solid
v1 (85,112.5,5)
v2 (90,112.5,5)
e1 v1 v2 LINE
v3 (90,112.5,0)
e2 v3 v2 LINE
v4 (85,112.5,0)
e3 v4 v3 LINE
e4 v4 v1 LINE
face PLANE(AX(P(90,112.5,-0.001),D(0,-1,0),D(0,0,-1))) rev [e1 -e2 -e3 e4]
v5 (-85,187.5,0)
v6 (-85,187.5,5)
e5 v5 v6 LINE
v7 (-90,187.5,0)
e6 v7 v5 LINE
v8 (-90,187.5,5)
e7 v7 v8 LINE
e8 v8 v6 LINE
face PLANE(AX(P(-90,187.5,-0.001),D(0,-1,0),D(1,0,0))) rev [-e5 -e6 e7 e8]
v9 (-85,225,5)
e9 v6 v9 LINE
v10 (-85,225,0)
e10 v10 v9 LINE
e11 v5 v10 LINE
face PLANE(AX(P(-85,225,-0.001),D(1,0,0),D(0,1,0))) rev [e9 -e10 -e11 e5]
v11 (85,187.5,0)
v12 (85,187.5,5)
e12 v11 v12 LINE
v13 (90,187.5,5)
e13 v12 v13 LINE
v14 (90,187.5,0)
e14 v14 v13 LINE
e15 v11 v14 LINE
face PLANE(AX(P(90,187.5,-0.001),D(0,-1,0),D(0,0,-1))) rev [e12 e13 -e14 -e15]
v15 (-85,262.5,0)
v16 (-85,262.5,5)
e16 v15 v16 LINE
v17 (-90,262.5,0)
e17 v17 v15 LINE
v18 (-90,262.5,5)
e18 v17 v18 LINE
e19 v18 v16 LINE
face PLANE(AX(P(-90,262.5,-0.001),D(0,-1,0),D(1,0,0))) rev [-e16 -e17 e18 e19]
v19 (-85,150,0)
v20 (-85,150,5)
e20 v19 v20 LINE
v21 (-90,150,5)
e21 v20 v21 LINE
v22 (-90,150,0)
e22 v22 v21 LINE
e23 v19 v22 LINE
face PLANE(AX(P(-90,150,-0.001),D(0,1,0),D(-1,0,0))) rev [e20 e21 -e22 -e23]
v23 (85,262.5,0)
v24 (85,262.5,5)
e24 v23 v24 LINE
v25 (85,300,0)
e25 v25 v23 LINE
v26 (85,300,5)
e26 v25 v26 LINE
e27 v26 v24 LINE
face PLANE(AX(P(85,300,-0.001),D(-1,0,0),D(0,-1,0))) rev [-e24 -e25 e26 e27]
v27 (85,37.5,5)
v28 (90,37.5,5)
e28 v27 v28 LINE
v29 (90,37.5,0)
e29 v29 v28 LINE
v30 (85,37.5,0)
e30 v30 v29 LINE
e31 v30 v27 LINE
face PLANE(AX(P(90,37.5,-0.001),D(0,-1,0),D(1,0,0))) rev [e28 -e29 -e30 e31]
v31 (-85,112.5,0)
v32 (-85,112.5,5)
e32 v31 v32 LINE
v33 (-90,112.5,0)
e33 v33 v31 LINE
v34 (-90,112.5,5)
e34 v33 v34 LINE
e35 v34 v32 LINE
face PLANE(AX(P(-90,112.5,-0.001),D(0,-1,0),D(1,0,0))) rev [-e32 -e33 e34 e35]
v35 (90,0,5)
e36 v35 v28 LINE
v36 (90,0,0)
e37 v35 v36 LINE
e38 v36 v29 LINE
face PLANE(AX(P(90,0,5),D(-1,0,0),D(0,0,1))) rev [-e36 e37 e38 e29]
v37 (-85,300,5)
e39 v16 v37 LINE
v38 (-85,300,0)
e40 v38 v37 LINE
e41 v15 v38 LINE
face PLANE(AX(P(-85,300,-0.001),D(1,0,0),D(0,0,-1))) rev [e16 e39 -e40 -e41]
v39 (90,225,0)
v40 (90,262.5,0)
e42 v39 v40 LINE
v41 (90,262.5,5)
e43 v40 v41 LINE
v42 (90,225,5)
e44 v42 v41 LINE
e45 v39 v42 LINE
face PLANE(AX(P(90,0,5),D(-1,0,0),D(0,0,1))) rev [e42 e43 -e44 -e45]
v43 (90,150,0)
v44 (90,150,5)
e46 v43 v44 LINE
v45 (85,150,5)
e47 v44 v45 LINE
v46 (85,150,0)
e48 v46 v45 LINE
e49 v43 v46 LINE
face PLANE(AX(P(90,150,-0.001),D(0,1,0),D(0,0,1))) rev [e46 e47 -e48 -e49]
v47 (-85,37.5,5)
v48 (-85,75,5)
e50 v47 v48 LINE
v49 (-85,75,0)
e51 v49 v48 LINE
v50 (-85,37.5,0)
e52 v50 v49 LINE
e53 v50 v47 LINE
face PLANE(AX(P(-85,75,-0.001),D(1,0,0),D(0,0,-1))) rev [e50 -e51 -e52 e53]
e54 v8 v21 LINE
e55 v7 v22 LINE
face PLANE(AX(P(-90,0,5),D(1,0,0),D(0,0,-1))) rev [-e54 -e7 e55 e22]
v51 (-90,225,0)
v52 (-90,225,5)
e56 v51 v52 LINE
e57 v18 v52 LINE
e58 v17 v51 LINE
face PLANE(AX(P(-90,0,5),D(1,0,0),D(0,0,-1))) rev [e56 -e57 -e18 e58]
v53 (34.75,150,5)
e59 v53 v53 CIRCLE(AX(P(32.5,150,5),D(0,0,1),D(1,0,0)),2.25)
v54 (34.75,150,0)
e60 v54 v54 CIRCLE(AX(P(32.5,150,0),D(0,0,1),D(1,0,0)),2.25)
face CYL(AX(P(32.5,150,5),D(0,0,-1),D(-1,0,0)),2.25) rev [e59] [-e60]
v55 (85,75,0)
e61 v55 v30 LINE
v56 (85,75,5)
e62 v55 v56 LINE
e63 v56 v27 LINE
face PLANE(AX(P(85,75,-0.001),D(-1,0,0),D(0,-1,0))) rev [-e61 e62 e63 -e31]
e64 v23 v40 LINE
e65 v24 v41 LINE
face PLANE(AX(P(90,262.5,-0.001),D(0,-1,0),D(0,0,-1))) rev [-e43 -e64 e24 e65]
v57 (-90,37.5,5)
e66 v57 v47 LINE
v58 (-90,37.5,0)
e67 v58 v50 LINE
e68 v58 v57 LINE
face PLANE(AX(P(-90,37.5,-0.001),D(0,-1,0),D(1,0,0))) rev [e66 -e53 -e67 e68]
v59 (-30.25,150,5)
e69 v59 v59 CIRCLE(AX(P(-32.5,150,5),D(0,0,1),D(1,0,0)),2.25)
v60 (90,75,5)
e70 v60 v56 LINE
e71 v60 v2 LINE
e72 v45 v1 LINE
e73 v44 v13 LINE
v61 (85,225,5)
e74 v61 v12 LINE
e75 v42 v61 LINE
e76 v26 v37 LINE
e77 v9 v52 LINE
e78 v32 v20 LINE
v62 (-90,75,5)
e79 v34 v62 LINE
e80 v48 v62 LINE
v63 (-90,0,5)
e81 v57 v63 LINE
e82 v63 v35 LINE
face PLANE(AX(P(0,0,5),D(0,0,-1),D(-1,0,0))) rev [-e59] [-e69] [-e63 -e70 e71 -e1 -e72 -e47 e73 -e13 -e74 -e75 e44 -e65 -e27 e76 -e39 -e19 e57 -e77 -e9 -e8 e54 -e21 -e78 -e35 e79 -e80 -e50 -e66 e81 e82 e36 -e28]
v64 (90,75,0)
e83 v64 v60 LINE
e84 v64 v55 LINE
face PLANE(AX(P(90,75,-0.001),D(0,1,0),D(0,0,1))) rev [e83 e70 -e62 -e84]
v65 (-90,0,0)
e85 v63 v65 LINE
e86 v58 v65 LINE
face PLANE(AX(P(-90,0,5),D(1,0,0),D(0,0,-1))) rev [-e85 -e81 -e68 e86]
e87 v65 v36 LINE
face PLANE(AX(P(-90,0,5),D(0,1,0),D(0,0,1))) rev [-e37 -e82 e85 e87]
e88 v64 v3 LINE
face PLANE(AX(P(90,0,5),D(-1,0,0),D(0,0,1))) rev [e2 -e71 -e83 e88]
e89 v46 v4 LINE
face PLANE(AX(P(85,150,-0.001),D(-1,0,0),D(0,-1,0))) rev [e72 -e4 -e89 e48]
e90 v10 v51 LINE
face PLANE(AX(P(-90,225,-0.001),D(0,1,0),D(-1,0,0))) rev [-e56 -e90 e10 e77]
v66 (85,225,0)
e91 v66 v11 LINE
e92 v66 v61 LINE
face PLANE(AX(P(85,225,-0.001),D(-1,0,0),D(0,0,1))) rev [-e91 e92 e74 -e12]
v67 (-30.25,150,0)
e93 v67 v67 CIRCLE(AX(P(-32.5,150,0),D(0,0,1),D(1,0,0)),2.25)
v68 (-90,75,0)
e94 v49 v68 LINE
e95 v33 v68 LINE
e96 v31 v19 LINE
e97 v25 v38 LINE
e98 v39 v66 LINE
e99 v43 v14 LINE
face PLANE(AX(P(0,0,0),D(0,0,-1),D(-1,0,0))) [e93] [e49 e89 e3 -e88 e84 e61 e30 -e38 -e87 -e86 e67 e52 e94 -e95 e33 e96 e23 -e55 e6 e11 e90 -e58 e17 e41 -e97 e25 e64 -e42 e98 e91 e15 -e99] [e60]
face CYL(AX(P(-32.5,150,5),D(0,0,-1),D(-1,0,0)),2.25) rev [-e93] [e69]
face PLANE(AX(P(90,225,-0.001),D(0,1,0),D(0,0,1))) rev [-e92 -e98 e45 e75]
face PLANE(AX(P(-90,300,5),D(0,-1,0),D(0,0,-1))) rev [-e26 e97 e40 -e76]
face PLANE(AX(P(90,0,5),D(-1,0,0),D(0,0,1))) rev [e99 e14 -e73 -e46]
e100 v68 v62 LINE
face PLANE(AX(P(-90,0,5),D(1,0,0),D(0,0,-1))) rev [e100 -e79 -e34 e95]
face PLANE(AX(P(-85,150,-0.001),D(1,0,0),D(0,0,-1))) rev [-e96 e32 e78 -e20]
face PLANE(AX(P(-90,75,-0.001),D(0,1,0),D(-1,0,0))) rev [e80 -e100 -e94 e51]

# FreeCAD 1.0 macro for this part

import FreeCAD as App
import Part
import Sketcher
from FreeCAD import Vector

doc = App.newDocument("Part")
body = doc.addObject("PartDesign::Body", "Body")

sketch1 = body.newObject("Sketcher::SketchObject", "Sketch")
sketch1.AttachmentSupport = (doc.getObject("XY_Plane"), [""])
sketch1.MapMode = "FlatFace"
sketch1.addGeometry([
    Part.LineSegment(Vector(-90, 300, 0), Vector(-90, 0, 0)),
    Part.LineSegment(Vector(-90, 0, 0), Vector(90, 0, 0)),
    Part.LineSegment(Vector(90, 0, 0), Vector(90, 300, 0)),
    Part.LineSegment(Vector(90, 300, 0), Vector(-90, 300, 0)),
    Part.Circle(Vector(-32.5, 150, 0), Vector(0, 0, 1), 2.2),
    Part.Circle(Vector(32.5, 150, 0), Vector(0, 0, 1), 2.2),
], False)
sketch1.addConstraint([
    Sketcher.Constraint("Coincident", 0, 2, 1, 1),
    Sketcher.Constraint("Coincident", 1, 2, 2, 1),
    Sketcher.Constraint("Coincident", 2, 2, 3, 1),
    Sketcher.Constraint("Coincident", 3, 2, 0, 1),
    Sketcher.Constraint("Vertical", 0),
    Sketcher.Constraint("Horizontal", 1),
    Sketcher.Constraint("Vertical", 2),
    Sketcher.Constraint("Horizontal", 3),
    Sketcher.Constraint("Equal", 4, 5),
    Sketcher.Constraint("Symmetric", 0, 2, 1, 2, -1, 1),
    Sketcher.Constraint("Symmetric", 4, 3, 5, 3, -2),
    Sketcher.Constraint("Diameter", 4, 4.5),
    Sketcher.Constraint("DistanceX", 1, 1, 1, 2, 180.0),
    Sketcher.Constraint("DistanceY", 0, 2, 0, 1, 300.0),
    Sketcher.Constraint("DistanceY", -1, 1, 4, 3, 150.0),
    Sketcher.Constraint("DistanceX", 4, 3, 5, 3, 65.0),
])
pad1 = body.newObject("PartDesign::Pad", "Pad")
pad1.Profile = sketch1
pad1.Length = 5

sketch2 = body.newObject("Sketcher::SketchObject", "Sketch001")
sketch2.AttachmentSupport = (doc.getObject("XY_Plane"), [""])
sketch2.MapMode = "FlatFace"
sketch2.AttachmentOffset = App.Placement(Vector(0, 0, 5), App.Rotation())
sketch2.addGeometry([
    Part.LineSegment(Vector(-90, 300, 0), Vector(-90, 262, 0)),
    Part.LineSegment(Vector(-90, 262, 0), Vector(-85, 262, 0)),
    Part.LineSegment(Vector(-85, 262, 0), Vector(-85, 300, 0)),
    Part.LineSegment(Vector(-85, 300, 0), Vector(-90, 300, 0)),
], False)
sketch2.addConstraint([
    Sketcher.Constraint("Coincident", 0, 2, 1, 1),
    Sketcher.Constraint("Coincident", 1, 2, 2, 1),
    Sketcher.Constraint("Coincident", 2, 2, 3, 1),
    Sketcher.Constraint("Coincident", 3, 2, 0, 1),
    Sketcher.Constraint("Vertical", 0),
    Sketcher.Constraint("Horizontal", 1),
    Sketcher.Constraint("Vertical", 2),
    Sketcher.Constraint("Horizontal", 3),
    Sketcher.Constraint("DistanceX", 1, 1, 1, 2, 5.0),
    Sketcher.Constraint("DistanceY", 0, 2, 0, 1, 37.5),
    Sketcher.Constraint("DistanceX", 0, 2, -1, 1, 90.0),
    Sketcher.Constraint("DistanceY", -1, 1, 2, 2, 300.0),
])
pocket1 = body.newObject("PartDesign::Pocket", "Pocket")
pocket1.Profile = sketch2
pocket1.Type = "UpToFirst"

sketch3 = body.newObject("Sketcher::SketchObject", "Sketch002")
sketch3.AttachmentSupport = (doc.getObject("XY_Plane"), [""])
sketch3.MapMode = "FlatFace"
sketch3.AttachmentOffset = App.Placement(Vector(0, 0, 5), App.Rotation())
sketch3.addGeometry([
    Part.LineSegment(Vector(-90, 225, 0), Vector(-90, 188, 0)),
    Part.LineSegment(Vector(-90, 188, 0), Vector(-85, 188, 0)),
    Part.LineSegment(Vector(-85, 188, 0), Vector(-85, 225, 0)),
    Part.LineSegment(Vector(-85, 225, 0), Vector(-90, 225, 0)),
], False)
sketch3.addConstraint([
    Sketcher.Constraint("Coincident", 0, 2, 1, 1),
    Sketcher.Constraint("Coincident", 1, 2, 2, 1),
    Sketcher.Constraint("Coincident", 2, 2, 3, 1),
    Sketcher.Constraint("Coincident", 3, 2, 0, 1),
    Sketcher.Constraint("Vertical", 0),
    Sketcher.Constraint("Horizontal", 1),
    Sketcher.Constraint("Vertical", 2),
    Sketcher.Constraint("Horizontal", 3),
    Sketcher.Constraint("DistanceX", 1, 1, 1, 2, 5.0),
    Sketcher.Constraint("DistanceY", 0, 2, 0, 1, 37.5),
    Sketcher.Constraint("DistanceX", 0, 2, -1, 1, 90.0),
    Sketcher.Constraint("DistanceY", -1, 1, 2, 2, 225.0),
])
pocket2 = body.newObject("PartDesign::Pocket", "Pocket001")
pocket2.Profile = sketch3
pocket2.Type = "UpToFirst"

sketch4 = body.newObject("Sketcher::SketchObject", "Sketch003")
sketch4.AttachmentSupport = (doc.getObject("XY_Plane"), [""])
sketch4.MapMode = "FlatFace"
sketch4.AttachmentOffset = App.Placement(Vector(0, 0, 5), App.Rotation())
sketch4.addGeometry([
    Part.LineSegment(Vector(-90, 150, 0), Vector(-90, 112, 0)),
    Part.LineSegment(Vector(-90, 112, 0), Vector(-85, 112, 0)),
    Part.LineSegment(Vector(-85, 112, 0), Vector(-85, 150, 0)),
    Part.LineSegment(Vector(-85, 150, 0), Vector(-90, 150, 0)),
], False)
sketch4.addConstraint([
    Sketcher.Constraint("Coincident", 0, 2, 1, 1),
    Sketcher.Constraint("Coincident", 1, 2, 2, 1),
    Sketcher.Constraint("Coincident", 2, 2, 3, 1),
    Sketcher.Constraint("Coincident", 3, 2, 0, 1),
    Sketcher.Constraint("Vertical", 0),
    Sketcher.Constraint("Horizontal", 1),
    Sketcher.Constraint("Vertical", 2),
    Sketcher.Constraint("Horizontal", 3),
    Sketcher.Constraint("DistanceX", 1, 1, 1, 2, 5.0),
    Sketcher.Constraint("DistanceY", 0, 2, 0, 1, 37.5),
    Sketcher.Constraint("DistanceX", 0, 2, -1, 1, 90.0),
    Sketcher.Constraint("DistanceY", -1, 1, 2, 2, 150.0),
])
pocket3 = body.newObject("PartDesign::Pocket", "Pocket002")
pocket3.Profile = sketch4
pocket3.Type = "UpToFirst"

sketch5 = body.newObject("Sketcher::SketchObject", "Sketch004")
sketch5.AttachmentSupport = (doc.getObject("XY_Plane"), [""])
sketch5.MapMode = "FlatFace"
sketch5.AttachmentOffset = App.Placement(Vector(0, 0, 5), App.Rotation())
sketch5.addGeometry([
    Part.LineSegment(Vector(-90, 75, 0), Vector(-90, 38, 0)),
    Part.LineSegment(Vector(-90, 38, 0), Vector(-85, 38, 0)),
    Part.LineSegment(Vector(-85, 38, 0), Vector(-85, 75, 0)),
    Part.LineSegment(Vector(-85, 75, 0), Vector(-90, 75, 0)),
], False)
sketch5.addConstraint([
    Sketcher.Constraint("Coincident", 0, 2, 1, 1),
    Sketcher.Constraint("Coincident", 1, 2, 2, 1),
    Sketcher.Constraint("Coincident", 2, 2, 3, 1),
    Sketcher.Constraint("Coincident", 3, 2, 0, 1),
    Sketcher.Constraint("Vertical", 0),
    Sketcher.Constraint("Horizontal", 1),
    Sketcher.Constraint("Vertical", 2),
    Sketcher.Constraint("Horizontal", 3),
    Sketcher.Constraint("DistanceX", 1, 1, 1, 2, 5.0),
    Sketcher.Constraint("DistanceY", 0, 2, 0, 1, 37.5),
    Sketcher.Constraint("DistanceX", 0, 2, -1, 1, 90.0),
    Sketcher.Constraint("DistanceY", -1, 1, 2, 2, 75.0),
])
pocket4 = body.newObject("PartDesign::Pocket", "Pocket003")
pocket4.Profile = sketch5
pocket4.Type = "UpToFirst"

sketch6 = body.newObject("Sketcher::SketchObject", "Sketch005")
sketch6.AttachmentSupport = (doc.getObject("XY_Plane"), [""])
sketch6.MapMode = "FlatFace"
sketch6.AttachmentOffset = App.Placement(Vector(0, 0, 5), App.Rotation())
sketch6.addGeometry([
    Part.LineSegment(Vector(85, 300, 0), Vector(85, 262, 0)),
    Part.LineSegment(Vector(85, 262, 0), Vector(90, 262, 0)),
    Part.LineSegment(Vector(90, 262, 0), Vector(90, 300, 0)),
    Part.LineSegment(Vector(90, 300, 0), Vector(85, 300, 0)),
], False)
sketch6.addConstraint([
    Sketcher.Constraint("Coincident", 0, 2, 1, 1),
    Sketcher.Constraint("Coincident", 1, 2, 2, 1),
    Sketcher.Constraint("Coincident", 2, 2, 3, 1),
    Sketcher.Constraint("Coincident", 3, 2, 0, 1),
    Sketcher.Constraint("Vertical", 0),
    Sketcher.Constraint("Horizontal", 1),
    Sketcher.Constraint("Vertical", 2),
    Sketcher.Constraint("Horizontal", 3),
    Sketcher.Constraint("DistanceX", 1, 1, 1, 2, 5.0),
    Sketcher.Constraint("DistanceY", 0, 2, 0, 1, 37.5),
    Sketcher.Constraint("DistanceX", -1, 1, 0, 2, 85.0),
    Sketcher.Constraint("DistanceY", -1, 1, 2, 2, 300.0),
])
pocket5 = body.newObject("PartDesign::Pocket", "Pocket004")
pocket5.Profile = sketch6
pocket5.Type = "UpToFirst"

sketch7 = body.newObject("Sketcher::SketchObject", "Sketch006")
sketch7.AttachmentSupport = (doc.getObject("XY_Plane"), [""])
sketch7.MapMode = "FlatFace"
sketch7.AttachmentOffset = App.Placement(Vector(0, 0, 5), App.Rotation())
sketch7.addGeometry([
    Part.LineSegment(Vector(85, 225, 0), Vector(85, 188, 0)),
    Part.LineSegment(Vector(85, 188, 0), Vector(90, 188, 0)),
    Part.LineSegment(Vector(90, 188, 0), Vector(90, 225, 0)),
    Part.LineSegment(Vector(90, 225, 0), Vector(85, 225, 0)),
], False)
sketch7.addConstraint([
    Sketcher.Constraint("Coincident", 0, 2, 1, 1),
    Sketcher.Constraint("Coincident", 1, 2, 2, 1),
    Sketcher.Constraint("Coincident", 2, 2, 3, 1),
    Sketcher.Constraint("Coincident", 3, 2, 0, 1),
    Sketcher.Constraint("Vertical", 0),
    Sketcher.Constraint("Horizontal", 1),
    Sketcher.Constraint("Vertical", 2),
    Sketcher.Constraint("Horizontal", 3),
    Sketcher.Constraint("DistanceX", 1, 1, 1, 2, 5.0),
    Sketcher.Constraint("DistanceY", 0, 2, 0, 1, 37.5),
    Sketcher.Constraint("DistanceX", -1, 1, 0, 2, 85.0),
    Sketcher.Constraint("DistanceY", -1, 1, 2, 2, 225.0),
])
pocket6 = body.newObject("PartDesign::Pocket", "Pocket005")
pocket6.Profile = sketch7
pocket6.Type = "UpToFirst"

sketch8 = body.newObject("Sketcher::SketchObject", "Sketch007")
sketch8.AttachmentSupport = (doc.getObject("XY_Plane"), [""])
sketch8.MapMode = "FlatFace"
sketch8.AttachmentOffset = App.Placement(Vector(0, 0, 5), App.Rotation())
sketch8.addGeometry([
    Part.LineSegment(Vector(85, 150, 0), Vector(85, 112, 0)),
    Part.LineSegment(Vector(85, 112, 0), Vector(90, 112, 0)),
    Part.LineSegment(Vector(90, 112, 0), Vector(90, 150, 0)),
    Part.LineSegment(Vector(90, 150, 0), Vector(85, 150, 0)),
], False)
sketch8.addConstraint([
    Sketcher.Constraint("Coincident", 0, 2, 1, 1),
    Sketcher.Constraint("Coincident", 1, 2, 2, 1),
    Sketcher.Constraint("Coincident", 2, 2, 3, 1),
    Sketcher.Constraint("Coincident", 3, 2, 0, 1),
    Sketcher.Constraint("Vertical", 0),
    Sketcher.Constraint("Horizontal", 1),
    Sketcher.Constraint("Vertical", 2),
    Sketcher.Constraint("Horizontal", 3),
    Sketcher.Constraint("DistanceX", 1, 1, 1, 2, 5.0),
    Sketcher.Constraint("DistanceY", 0, 2, 0, 1, 37.5),
    Sketcher.Constraint("DistanceX", -1, 1, 0, 2, 85.0),
    Sketcher.Constraint("DistanceY", -1, 1, 2, 2, 150.0),
])
pocket7 = body.newObject("PartDesign::Pocket", "Pocket006")
pocket7.Profile = sketch8
pocket7.Type = "UpToFirst"

sketch9 = body.newObject("Sketcher::SketchObject", "Sketch008")
sketch9.AttachmentSupport = (doc.getObject("XY_Plane"), [""])
sketch9.MapMode = "FlatFace"
sketch9.AttachmentOffset = App.Placement(Vector(0, 0, 5), App.Rotation())
sketch9.addGeometry([
    Part.LineSegment(Vector(85, 75, 0), Vector(85, 38, 0)),
    Part.LineSegment(Vector(85, 38, 0), Vector(90, 38, 0)),
    Part.LineSegment(Vector(90, 38, 0), Vector(90, 75, 0)),
    Part.LineSegment(Vector(90, 75, 0), Vector(85, 75, 0)),
], False)
sketch9.addConstraint([
    Sketcher.Constraint("Coincident", 0, 2, 1, 1),
    Sketcher.Constraint("Coincident", 1, 2, 2, 1),
    Sketcher.Constraint("Coincident", 2, 2, 3, 1),
    Sketcher.Constraint("Coincident", 3, 2, 0, 1),
    Sketcher.Constraint("Vertical", 0),
    Sketcher.Constraint("Horizontal", 1),
    Sketcher.Constraint("Vertical", 2),
    Sketcher.Constraint("Horizontal", 3),
    Sketcher.Constraint("DistanceX", 1, 1, 1, 2, 5.0),
    Sketcher.Constraint("DistanceY", 0, 2, 0, 1, 37.5),
    Sketcher.Constraint("DistanceX", -1, 1, 0, 2, 85.0),
    Sketcher.Constraint("DistanceY", -1, 1, 2, 2, 75.0),
])
pocket8 = body.newObject("PartDesign::Pocket", "Pocket007")
pocket8.Profile = sketch9
pocket8.Type = "UpToFirst"

doc.recompute()
